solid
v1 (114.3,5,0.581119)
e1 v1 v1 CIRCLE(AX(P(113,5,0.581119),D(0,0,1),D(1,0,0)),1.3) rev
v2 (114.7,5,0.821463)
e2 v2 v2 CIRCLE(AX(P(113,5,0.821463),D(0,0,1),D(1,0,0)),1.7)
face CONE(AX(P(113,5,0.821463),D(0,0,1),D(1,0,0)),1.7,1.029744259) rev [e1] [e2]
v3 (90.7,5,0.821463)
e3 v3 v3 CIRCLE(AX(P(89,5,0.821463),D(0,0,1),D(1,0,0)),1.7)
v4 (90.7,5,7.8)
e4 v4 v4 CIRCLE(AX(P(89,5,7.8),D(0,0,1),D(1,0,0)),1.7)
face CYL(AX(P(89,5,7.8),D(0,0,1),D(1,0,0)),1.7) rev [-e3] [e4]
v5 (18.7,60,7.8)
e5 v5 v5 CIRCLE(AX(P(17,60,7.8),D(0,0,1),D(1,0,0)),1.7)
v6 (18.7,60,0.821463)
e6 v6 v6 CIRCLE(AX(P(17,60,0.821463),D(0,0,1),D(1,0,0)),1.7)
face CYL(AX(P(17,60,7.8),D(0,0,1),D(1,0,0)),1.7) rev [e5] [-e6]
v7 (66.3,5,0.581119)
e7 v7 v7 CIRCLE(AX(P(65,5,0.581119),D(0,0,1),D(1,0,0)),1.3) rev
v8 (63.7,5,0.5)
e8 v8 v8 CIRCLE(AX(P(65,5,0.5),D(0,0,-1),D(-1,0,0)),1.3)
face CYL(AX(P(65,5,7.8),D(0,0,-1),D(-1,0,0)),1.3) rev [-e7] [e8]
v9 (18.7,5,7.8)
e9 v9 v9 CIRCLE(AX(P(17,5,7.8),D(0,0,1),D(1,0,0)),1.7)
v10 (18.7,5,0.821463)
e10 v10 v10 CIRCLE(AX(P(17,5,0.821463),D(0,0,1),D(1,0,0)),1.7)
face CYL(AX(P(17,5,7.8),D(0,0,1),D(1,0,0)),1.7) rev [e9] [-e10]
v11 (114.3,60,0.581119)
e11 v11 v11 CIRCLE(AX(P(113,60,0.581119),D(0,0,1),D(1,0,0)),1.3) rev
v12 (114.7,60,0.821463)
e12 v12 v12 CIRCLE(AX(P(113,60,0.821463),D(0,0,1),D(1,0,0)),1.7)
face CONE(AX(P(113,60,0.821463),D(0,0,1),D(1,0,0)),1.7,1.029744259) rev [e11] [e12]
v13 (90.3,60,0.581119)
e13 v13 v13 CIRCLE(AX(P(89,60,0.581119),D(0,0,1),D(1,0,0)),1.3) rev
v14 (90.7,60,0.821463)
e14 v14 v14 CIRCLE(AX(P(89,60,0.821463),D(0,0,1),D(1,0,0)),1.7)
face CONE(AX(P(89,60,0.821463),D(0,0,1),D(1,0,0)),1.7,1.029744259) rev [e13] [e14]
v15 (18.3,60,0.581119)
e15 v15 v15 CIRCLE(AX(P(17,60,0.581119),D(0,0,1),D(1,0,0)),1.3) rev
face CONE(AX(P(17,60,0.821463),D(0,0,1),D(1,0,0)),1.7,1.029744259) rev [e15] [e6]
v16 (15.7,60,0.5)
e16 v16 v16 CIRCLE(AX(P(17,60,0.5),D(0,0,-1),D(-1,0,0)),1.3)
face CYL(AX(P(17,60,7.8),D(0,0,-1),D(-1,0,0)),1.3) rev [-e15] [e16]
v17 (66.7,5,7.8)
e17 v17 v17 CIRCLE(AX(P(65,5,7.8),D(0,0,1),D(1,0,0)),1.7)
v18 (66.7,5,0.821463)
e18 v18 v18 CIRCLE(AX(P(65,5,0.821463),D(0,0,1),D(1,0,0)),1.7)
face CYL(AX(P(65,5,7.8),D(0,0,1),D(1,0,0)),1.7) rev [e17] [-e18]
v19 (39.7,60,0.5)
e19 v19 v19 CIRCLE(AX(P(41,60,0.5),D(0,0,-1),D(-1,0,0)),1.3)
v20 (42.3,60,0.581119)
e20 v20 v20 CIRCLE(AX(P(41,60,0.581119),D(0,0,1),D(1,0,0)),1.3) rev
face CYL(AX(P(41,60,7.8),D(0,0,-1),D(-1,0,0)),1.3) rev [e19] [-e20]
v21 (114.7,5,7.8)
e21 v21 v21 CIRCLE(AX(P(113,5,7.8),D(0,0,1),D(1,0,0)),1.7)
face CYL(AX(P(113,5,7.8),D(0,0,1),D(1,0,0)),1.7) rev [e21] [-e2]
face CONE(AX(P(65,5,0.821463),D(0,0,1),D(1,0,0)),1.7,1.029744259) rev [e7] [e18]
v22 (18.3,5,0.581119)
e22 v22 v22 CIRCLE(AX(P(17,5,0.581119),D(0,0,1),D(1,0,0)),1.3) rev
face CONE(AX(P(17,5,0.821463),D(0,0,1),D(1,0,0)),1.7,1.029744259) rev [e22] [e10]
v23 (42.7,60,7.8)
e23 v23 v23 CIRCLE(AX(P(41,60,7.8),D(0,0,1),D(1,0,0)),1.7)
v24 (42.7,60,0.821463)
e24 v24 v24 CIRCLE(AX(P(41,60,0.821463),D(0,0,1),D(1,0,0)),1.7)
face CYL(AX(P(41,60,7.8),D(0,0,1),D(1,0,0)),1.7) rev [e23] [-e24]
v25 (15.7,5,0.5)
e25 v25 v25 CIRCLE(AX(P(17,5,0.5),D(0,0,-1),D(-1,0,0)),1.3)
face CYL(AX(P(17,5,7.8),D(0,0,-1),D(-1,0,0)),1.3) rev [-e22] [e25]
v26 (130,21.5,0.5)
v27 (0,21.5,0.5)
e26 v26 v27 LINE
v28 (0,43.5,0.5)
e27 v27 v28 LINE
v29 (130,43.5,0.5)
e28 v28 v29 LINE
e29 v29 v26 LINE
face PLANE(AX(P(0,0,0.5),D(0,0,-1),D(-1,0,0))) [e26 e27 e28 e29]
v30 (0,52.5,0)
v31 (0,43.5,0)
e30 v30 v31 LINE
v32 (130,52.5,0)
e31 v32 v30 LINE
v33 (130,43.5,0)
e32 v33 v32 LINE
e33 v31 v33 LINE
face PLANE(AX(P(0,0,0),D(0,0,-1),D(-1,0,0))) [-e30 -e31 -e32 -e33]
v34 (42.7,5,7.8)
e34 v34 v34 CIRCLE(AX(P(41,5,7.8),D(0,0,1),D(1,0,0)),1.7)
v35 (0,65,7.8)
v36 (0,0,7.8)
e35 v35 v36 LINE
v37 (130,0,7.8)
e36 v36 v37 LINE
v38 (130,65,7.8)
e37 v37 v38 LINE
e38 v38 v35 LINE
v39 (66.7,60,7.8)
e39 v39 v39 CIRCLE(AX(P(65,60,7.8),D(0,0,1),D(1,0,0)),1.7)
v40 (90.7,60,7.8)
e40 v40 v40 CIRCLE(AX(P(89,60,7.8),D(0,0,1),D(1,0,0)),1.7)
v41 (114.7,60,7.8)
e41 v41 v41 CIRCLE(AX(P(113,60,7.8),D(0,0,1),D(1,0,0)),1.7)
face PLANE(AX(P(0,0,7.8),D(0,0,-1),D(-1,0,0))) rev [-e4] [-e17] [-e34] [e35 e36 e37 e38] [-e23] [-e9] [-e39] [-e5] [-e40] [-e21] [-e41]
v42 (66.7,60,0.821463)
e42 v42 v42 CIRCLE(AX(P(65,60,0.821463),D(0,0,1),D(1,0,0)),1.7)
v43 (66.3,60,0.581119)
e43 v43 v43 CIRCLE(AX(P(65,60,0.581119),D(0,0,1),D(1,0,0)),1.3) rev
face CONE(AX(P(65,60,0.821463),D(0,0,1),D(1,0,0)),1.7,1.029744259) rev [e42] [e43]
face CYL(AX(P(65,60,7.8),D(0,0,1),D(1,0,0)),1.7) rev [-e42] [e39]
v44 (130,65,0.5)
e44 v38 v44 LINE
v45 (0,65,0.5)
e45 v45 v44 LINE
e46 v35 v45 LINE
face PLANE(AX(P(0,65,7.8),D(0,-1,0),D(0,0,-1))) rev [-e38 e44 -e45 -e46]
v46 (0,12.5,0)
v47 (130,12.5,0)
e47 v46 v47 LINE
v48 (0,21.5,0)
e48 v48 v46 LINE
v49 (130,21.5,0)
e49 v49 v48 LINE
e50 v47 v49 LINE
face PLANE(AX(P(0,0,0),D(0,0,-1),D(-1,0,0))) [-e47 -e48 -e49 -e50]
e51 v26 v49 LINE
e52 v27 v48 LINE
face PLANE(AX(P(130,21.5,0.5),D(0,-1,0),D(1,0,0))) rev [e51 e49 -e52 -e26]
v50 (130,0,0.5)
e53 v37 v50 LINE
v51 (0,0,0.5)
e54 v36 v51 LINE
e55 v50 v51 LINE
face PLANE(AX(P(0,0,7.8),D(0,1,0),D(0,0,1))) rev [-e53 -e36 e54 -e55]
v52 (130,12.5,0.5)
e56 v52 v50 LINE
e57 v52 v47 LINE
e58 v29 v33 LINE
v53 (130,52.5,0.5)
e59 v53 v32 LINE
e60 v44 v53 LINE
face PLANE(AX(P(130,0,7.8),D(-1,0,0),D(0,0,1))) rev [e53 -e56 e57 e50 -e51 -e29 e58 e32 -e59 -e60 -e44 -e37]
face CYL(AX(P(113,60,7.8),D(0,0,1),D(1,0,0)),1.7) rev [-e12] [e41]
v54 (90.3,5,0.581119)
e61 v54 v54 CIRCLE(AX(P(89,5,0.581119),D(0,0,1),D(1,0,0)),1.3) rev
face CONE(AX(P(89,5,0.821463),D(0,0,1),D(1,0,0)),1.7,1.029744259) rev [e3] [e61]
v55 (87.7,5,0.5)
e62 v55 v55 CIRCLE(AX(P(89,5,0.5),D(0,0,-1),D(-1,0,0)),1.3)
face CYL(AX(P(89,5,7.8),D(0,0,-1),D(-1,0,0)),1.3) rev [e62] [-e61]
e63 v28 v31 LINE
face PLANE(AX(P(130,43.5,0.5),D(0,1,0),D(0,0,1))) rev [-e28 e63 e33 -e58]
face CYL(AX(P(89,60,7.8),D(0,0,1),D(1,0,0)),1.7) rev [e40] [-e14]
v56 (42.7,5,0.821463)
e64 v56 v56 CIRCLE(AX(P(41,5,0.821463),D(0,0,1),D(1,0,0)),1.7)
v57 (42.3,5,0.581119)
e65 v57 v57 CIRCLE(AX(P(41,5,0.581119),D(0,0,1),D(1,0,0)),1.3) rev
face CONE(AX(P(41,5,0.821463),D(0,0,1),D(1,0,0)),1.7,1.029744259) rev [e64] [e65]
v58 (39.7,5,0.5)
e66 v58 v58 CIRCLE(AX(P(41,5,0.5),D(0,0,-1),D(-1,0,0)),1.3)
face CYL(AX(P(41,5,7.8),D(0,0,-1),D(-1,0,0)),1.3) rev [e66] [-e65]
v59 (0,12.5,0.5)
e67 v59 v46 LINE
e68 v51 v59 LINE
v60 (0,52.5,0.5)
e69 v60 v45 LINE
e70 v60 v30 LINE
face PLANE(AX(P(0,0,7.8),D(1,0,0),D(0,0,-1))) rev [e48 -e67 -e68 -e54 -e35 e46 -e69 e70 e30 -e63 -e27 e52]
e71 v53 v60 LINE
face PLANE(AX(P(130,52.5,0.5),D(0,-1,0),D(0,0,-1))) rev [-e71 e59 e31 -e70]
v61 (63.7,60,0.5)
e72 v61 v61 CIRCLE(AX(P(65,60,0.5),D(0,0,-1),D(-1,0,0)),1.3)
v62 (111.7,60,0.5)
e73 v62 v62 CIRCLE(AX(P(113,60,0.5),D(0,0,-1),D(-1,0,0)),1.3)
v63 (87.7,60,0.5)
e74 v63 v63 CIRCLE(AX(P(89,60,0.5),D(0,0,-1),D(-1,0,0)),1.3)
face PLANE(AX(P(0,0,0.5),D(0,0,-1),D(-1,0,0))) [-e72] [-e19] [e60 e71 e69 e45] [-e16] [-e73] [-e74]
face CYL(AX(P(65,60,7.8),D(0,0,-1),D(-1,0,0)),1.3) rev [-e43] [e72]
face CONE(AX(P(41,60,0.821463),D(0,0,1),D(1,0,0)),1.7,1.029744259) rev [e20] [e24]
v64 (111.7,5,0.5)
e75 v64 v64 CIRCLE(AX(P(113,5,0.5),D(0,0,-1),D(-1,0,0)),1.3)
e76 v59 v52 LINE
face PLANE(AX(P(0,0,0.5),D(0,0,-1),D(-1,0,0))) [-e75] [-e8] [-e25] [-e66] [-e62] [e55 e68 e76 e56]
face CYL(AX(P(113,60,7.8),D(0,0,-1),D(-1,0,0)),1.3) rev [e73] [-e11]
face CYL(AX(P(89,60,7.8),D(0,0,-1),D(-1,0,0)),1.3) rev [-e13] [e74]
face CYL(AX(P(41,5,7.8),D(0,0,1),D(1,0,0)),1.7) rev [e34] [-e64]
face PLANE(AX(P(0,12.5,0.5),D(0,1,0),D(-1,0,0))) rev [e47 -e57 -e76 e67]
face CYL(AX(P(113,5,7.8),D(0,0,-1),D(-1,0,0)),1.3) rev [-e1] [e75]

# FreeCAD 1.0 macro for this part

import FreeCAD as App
import Part
import Sketcher


def add_polygon(sketch, points):
    """Adds a closed chain of lines whose ends are joined by coincident constraints."""
    first, n = sketch.GeometryCount, len(points)
    for a, b in zip(points, points[1:] + points[:1]):
        sketch.addGeometry(Part.LineSegment(App.Vector(*a, 0), App.Vector(*b, 0)), False)
    for i in range(n):
        sketch.addConstraint(Sketcher.Constraint("Coincident", first + i, 2, first + (i + 1) % n, 1))

doc = App.newDocument("Part")
body = doc.addObject("PartDesign::Body", "Body")

# Sketch on XY plane
sketch1 = doc.addObject("Sketcher::SketchObject", "Sketch")
body.addObject(sketch1)
sketch1.AttachmentSupport = (doc.XY_Plane, [""])
sketch1.MapMode = "FlatFace"
add_polygon(sketch1, [(0, 65), (0, 0), (130, 0), (130, 65)])  # lines 0-3
sketch1.addGeometry(Part.Circle(App.Vector(17, 5, 0), App.Vector(0, 0, 1), 1.3), False)  # 4
sketch1.addGeometry(Part.Circle(App.Vector(41, 5, 0), App.Vector(0, 0, 1), 1.3), False)  # 5
sketch1.addGeometry(Part.Circle(App.Vector(65, 5, 0), App.Vector(0, 0, 1), 1.3), False)  # 6
sketch1.addGeometry(Part.Circle(App.Vector(89, 5, 0), App.Vector(0, 0, 1), 1.3), False)  # 7
sketch1.addGeometry(Part.Circle(App.Vector(113, 5, 0), App.Vector(0, 0, 1), 1.3), False)  # 8
sketch1.addGeometry(Part.Circle(App.Vector(17, 60, 0), App.Vector(0, 0, 1), 1.3), False)  # 9
sketch1.addGeometry(Part.Circle(App.Vector(41, 60, 0), App.Vector(0, 0, 1), 1.3), False)  # 10
sketch1.addGeometry(Part.Circle(App.Vector(65, 60, 0), App.Vector(0, 0, 1), 1.3), False)  # 11
sketch1.addGeometry(Part.Circle(App.Vector(89, 60, 0), App.Vector(0, 0, 1), 1.3), False)  # 12
sketch1.addGeometry(Part.Circle(App.Vector(113, 60, 0), App.Vector(0, 0, 1), 1.3), False)  # 13
sketch1.addConstraint(Sketcher.Constraint("Vertical", 0))
sketch1.addConstraint(Sketcher.Constraint("Horizontal", 1))
sketch1.addConstraint(Sketcher.Constraint("Vertical", 2))
sketch1.addConstraint(Sketcher.Constraint("Horizontal", 3))
sketch1.addConstraint(Sketcher.Constraint("Coincident", 0, 2, -1, 1))
sketch1.addConstraint(Sketcher.Constraint("Equal", 4, 5))
sketch1.addConstraint(Sketcher.Constraint("Equal", 5, 6))
sketch1.addConstraint(Sketcher.Constraint("Equal", 6, 7))
sketch1.addConstraint(Sketcher.Constraint("Equal", 7, 8))
sketch1.addConstraint(Sketcher.Constraint("Equal", 8, 9))
sketch1.addConstraint(Sketcher.Constraint("Equal", 9, 10))
sketch1.addConstraint(Sketcher.Constraint("Equal", 10, 11))
sketch1.addConstraint(Sketcher.Constraint("Equal", 11, 12))
sketch1.addConstraint(Sketcher.Constraint("Equal", 12, 13))
sketch1.addConstraint(Sketcher.Constraint("Horizontal", 4, 3, 5, 3))
sketch1.addConstraint(Sketcher.Constraint("Horizontal", 5, 3, 6, 3))
sketch1.addConstraint(Sketcher.Constraint("Horizontal", 6, 3, 7, 3))
sketch1.addConstraint(Sketcher.Constraint("Horizontal", 7, 3, 8, 3))
sketch1.addConstraint(Sketcher.Constraint("Horizontal", 9, 3, 10, 3))
sketch1.addConstraint(Sketcher.Constraint("Horizontal", 10, 3, 11, 3))
sketch1.addConstraint(Sketcher.Constraint("Horizontal", 11, 3, 12, 3))
sketch1.addConstraint(Sketcher.Constraint("Horizontal", 12, 3, 13, 3))
sketch1.addConstraint(Sketcher.Constraint("Vertical", 4, 3, 9, 3))
sketch1.addConstraint(Sketcher.Constraint("Vertical", 5, 3, 10, 3))
sketch1.addConstraint(Sketcher.Constraint("Vertical", 6, 3, 11, 3))
sketch1.addConstraint(Sketcher.Constraint("Vertical", 7, 3, 12, 3))
sketch1.addConstraint(Sketcher.Constraint("Vertical", 8, 3, 13, 3))
sketch1.addConstraint(Sketcher.Constraint("Diameter", 4, 2.6))
sketch1.addConstraint(Sketcher.Constraint("DistanceX", 1, 1, 1, 2, 130.0))
sketch1.addConstraint(Sketcher.Constraint("DistanceY", 0, 2, 0, 1, 65.0))
sketch1.addConstraint(Sketcher.Constraint("DistanceX", -1, 1, 4, 3, 17.0))
sketch1.addConstraint(Sketcher.Constraint("DistanceY", -1, 1, 4, 3, 5.0))
sketch1.addConstraint(Sketcher.Constraint("DistanceX", -1, 1, 5, 3, 41.0))
sketch1.addConstraint(Sketcher.Constraint("DistanceX", -1, 1, 6, 3, 65.0))
sketch1.addConstraint(Sketcher.Constraint("DistanceX", -1, 1, 7, 3, 89.0))
sketch1.addConstraint(Sketcher.Constraint("DistanceX", -1, 1, 8, 3, 113.0))
sketch1.addConstraint(Sketcher.Constraint("DistanceY", -1, 1, 9, 3, 60.0))
pad1 = doc.addObject("PartDesign::Pad", "Pad")
body.addObject(pad1)
pad1.Profile = sketch1
pad1.Length = 7.8

# Sketch on XY plane
sketch2 = doc.addObject("Sketcher::SketchObject", "Sketch001")
body.addObject(sketch2)
sketch2.AttachmentSupport = (doc.XY_Plane, [""])
sketch2.MapMode = "FlatFace"
add_polygon(sketch2, [(130, 65), (130, 52.5), (0, 52.5), (0, 65)])  # lines 0-3
add_polygon(sketch2, [(130, 12.5), (130, 0), (0, 0), (0, 12.5)])  # lines 4-7
add_polygon(sketch2, [(130, 43.5), (130, 21.5), (0, 21.5), (0, 43.5)])  # lines 8-11
sketch2.addConstraint(Sketcher.Constraint("Vertical", 0))
sketch2.addConstraint(Sketcher.Constraint("Horizontal", 1))
sketch2.addConstraint(Sketcher.Constraint("Vertical", 2))
sketch2.addConstraint(Sketcher.Constraint("Horizontal", 3))
sketch2.addConstraint(Sketcher.Constraint("Vertical", 4))
sketch2.addConstraint(Sketcher.Constraint("Horizontal", 5))
sketch2.addConstraint(Sketcher.Constraint("Vertical", 6))
sketch2.addConstraint(Sketcher.Constraint("Horizontal", 7))
sketch2.addConstraint(Sketcher.Constraint("Vertical", 8))
sketch2.addConstraint(Sketcher.Constraint("Horizontal", 9))
sketch2.addConstraint(Sketcher.Constraint("Vertical", 10))
sketch2.addConstraint(Sketcher.Constraint("Horizontal", 11))
sketch2.addConstraint(Sketcher.Constraint("Coincident", 5, 2, -1, 1))
sketch2.addConstraint(Sketcher.Constraint("PointOnObject", 1, 2, -2))
sketch2.addConstraint(Sketcher.Constraint("PointOnObject", 9, 2, -2))
sketch2.addConstraint(Sketcher.Constraint("Vertical", 3, 2, 4, 2))
sketch2.addConstraint(Sketcher.Constraint("Vertical", 7, 2, 8, 2))
sketch2.addConstraint(Sketcher.Constraint("Equal", 2, 4))
sketch2.addConstraint(Sketcher.Constraint("DistanceX", 1, 2, 1, 1, 130.0))
sketch2.addConstraint(Sketcher.Constraint("DistanceY", 8, 2, 8, 1, 22.0))
sketch2.addConstraint(Sketcher.Constraint("DistanceY", 0, 2, 0, 1, 12.5))
sketch2.addConstraint(Sketcher.Constraint("DistanceY", -1, 1, 2, 2, 65.0))
sketch2.addConstraint(Sketcher.Constraint("DistanceY", 7, 2, 8, 2, 9.0))
pocket1 = doc.addObject("PartDesign::Pocket", "Pocket")
body.addObject(pocket1)
pocket1.Profile = sketch2
pocket1.Length = 0.5
pocket1.Reversed = True

# Sketch on XY plane
sketch3 = doc.addObject("Sketcher::SketchObject", "Sketch002")
body.addObject(sketch3)
sketch3.AttachmentSupport = (doc.XY_Plane, [""])
sketch3.MapMode = "FlatFace"
sketch3.AttachmentOffset = App.Placement(App.Vector(0, 0, 7.8), App.Rotation())
sketch3.addGeometry(Part.Circle(App.Vector(17, 60, 0), App.Vector(0, 0, 1), 1.7), False)
sketch3.addGeometry(Part.Circle(App.Vector(41, 60, 0), App.Vector(0, 0, 1), 1.7), False)
sketch3.addGeometry(Part.Circle(App.Vector(65, 60, 0), App.Vector(0, 0, 1), 1.7), False)
sketch3.addGeometry(Part.Circle(App.Vector(89, 60, 0), App.Vector(0, 0, 1), 1.7), False)
sketch3.addGeometry(Part.Circle(App.Vector(113, 60, 0), App.Vector(0, 0, 1), 1.7), False)
sketch3.addGeometry(Part.Circle(App.Vector(113, 5, 0), App.Vector(0, 0, 1), 1.7), False)
sketch3.addGeometry(Part.Circle(App.Vector(89, 5, 0), App.Vector(0, 0, 1), 1.7), False)
sketch3.addGeometry(Part.Circle(App.Vector(65, 5, 0), App.Vector(0, 0, 1), 1.7), False)
sketch3.addGeometry(Part.Circle(App.Vector(41, 5, 0), App.Vector(0, 0, 1), 1.7), False)
sketch3.addGeometry(Part.Circle(App.Vector(17, 5, 0), App.Vector(0, 0, 1), 1.7), False)
sketch3.addConstraint(Sketcher.Constraint("Equal", 0, 1))
sketch3.addConstraint(Sketcher.Constraint("Equal", 1, 2))
sketch3.addConstraint(Sketcher.Constraint("Equal", 2, 3))
sketch3.addConstraint(Sketcher.Constraint("Equal", 3, 4))
sketch3.addConstraint(Sketcher.Constraint("Equal", 4, 5))
sketch3.addConstraint(Sketcher.Constraint("Equal", 5, 6))
sketch3.addConstraint(Sketcher.Constraint("Equal", 6, 7))
sketch3.addConstraint(Sketcher.Constraint("Equal", 7, 8))
sketch3.addConstraint(Sketcher.Constraint("Equal", 8, 9))
sketch3.addConstraint(Sketcher.Constraint("Horizontal", 0, 3, 1, 3))
sketch3.addConstraint(Sketcher.Constraint("Horizontal", 1, 3, 2, 3))
sketch3.addConstraint(Sketcher.Constraint("Horizontal", 2, 3, 3, 3))
sketch3.addConstraint(Sketcher.Constraint("Horizontal", 3, 3, 4, 3))
sketch3.addConstraint(Sketcher.Constraint("Horizontal", 5, 3, 6, 3))
sketch3.addConstraint(Sketcher.Constraint("Horizontal", 6, 3, 7, 3))
sketch3.addConstraint(Sketcher.Constraint("Horizontal", 7, 3, 8, 3))
sketch3.addConstraint(Sketcher.Constraint("Horizontal", 8, 3, 9, 3))
sketch3.addConstraint(Sketcher.Constraint("Vertical", 4, 3, 5, 3))
sketch3.addConstraint(Sketcher.Constraint("Vertical", 3, 3, 6, 3))
sketch3.addConstraint(Sketcher.Constraint("Vertical", 2, 3, 7, 3))
sketch3.addConstraint(Sketcher.Constraint("Vertical", 1, 3, 8, 3))
sketch3.addConstraint(Sketcher.Constraint("Vertical", 0, 3, 9, 3))
sketch3.addConstraint(Sketcher.Constraint("Diameter", 0, 3.4))
sketch3.addConstraint(Sketcher.Constraint("DistanceX", -1, 1, 0, 3, 17.0))
sketch3.addConstraint(Sketcher.Constraint("DistanceY", -1, 1, 0, 3, 60.0))
sketch3.addConstraint(Sketcher.Constraint("DistanceX", -1, 1, 1, 3, 41.0))
sketch3.addConstraint(Sketcher.Constraint("DistanceX", -1, 1, 2, 3, 65.0))
sketch3.addConstraint(Sketcher.Constraint("DistanceX", -1, 1, 3, 3, 89.0))
sketch3.addConstraint(Sketcher.Constraint("DistanceX", -1, 1, 4, 3, 113.0))
sketch3.addConstraint(Sketcher.Constraint("DistanceY", -1, 1, 5, 3, 5.0))
doc.recompute()
hole = doc.addObject("PartDesign::Hole", "Hole")
body.addObject(hole)
hole.Profile = sketch3
hole.ThreadType = "None"
hole.Diameter = 3.4
hole.DepthType = "Dimension"
hole.Depth = 6.978537
hole.DrillPoint = "Angled"
hole.DrillPointAngle = 118

doc.recompute()
